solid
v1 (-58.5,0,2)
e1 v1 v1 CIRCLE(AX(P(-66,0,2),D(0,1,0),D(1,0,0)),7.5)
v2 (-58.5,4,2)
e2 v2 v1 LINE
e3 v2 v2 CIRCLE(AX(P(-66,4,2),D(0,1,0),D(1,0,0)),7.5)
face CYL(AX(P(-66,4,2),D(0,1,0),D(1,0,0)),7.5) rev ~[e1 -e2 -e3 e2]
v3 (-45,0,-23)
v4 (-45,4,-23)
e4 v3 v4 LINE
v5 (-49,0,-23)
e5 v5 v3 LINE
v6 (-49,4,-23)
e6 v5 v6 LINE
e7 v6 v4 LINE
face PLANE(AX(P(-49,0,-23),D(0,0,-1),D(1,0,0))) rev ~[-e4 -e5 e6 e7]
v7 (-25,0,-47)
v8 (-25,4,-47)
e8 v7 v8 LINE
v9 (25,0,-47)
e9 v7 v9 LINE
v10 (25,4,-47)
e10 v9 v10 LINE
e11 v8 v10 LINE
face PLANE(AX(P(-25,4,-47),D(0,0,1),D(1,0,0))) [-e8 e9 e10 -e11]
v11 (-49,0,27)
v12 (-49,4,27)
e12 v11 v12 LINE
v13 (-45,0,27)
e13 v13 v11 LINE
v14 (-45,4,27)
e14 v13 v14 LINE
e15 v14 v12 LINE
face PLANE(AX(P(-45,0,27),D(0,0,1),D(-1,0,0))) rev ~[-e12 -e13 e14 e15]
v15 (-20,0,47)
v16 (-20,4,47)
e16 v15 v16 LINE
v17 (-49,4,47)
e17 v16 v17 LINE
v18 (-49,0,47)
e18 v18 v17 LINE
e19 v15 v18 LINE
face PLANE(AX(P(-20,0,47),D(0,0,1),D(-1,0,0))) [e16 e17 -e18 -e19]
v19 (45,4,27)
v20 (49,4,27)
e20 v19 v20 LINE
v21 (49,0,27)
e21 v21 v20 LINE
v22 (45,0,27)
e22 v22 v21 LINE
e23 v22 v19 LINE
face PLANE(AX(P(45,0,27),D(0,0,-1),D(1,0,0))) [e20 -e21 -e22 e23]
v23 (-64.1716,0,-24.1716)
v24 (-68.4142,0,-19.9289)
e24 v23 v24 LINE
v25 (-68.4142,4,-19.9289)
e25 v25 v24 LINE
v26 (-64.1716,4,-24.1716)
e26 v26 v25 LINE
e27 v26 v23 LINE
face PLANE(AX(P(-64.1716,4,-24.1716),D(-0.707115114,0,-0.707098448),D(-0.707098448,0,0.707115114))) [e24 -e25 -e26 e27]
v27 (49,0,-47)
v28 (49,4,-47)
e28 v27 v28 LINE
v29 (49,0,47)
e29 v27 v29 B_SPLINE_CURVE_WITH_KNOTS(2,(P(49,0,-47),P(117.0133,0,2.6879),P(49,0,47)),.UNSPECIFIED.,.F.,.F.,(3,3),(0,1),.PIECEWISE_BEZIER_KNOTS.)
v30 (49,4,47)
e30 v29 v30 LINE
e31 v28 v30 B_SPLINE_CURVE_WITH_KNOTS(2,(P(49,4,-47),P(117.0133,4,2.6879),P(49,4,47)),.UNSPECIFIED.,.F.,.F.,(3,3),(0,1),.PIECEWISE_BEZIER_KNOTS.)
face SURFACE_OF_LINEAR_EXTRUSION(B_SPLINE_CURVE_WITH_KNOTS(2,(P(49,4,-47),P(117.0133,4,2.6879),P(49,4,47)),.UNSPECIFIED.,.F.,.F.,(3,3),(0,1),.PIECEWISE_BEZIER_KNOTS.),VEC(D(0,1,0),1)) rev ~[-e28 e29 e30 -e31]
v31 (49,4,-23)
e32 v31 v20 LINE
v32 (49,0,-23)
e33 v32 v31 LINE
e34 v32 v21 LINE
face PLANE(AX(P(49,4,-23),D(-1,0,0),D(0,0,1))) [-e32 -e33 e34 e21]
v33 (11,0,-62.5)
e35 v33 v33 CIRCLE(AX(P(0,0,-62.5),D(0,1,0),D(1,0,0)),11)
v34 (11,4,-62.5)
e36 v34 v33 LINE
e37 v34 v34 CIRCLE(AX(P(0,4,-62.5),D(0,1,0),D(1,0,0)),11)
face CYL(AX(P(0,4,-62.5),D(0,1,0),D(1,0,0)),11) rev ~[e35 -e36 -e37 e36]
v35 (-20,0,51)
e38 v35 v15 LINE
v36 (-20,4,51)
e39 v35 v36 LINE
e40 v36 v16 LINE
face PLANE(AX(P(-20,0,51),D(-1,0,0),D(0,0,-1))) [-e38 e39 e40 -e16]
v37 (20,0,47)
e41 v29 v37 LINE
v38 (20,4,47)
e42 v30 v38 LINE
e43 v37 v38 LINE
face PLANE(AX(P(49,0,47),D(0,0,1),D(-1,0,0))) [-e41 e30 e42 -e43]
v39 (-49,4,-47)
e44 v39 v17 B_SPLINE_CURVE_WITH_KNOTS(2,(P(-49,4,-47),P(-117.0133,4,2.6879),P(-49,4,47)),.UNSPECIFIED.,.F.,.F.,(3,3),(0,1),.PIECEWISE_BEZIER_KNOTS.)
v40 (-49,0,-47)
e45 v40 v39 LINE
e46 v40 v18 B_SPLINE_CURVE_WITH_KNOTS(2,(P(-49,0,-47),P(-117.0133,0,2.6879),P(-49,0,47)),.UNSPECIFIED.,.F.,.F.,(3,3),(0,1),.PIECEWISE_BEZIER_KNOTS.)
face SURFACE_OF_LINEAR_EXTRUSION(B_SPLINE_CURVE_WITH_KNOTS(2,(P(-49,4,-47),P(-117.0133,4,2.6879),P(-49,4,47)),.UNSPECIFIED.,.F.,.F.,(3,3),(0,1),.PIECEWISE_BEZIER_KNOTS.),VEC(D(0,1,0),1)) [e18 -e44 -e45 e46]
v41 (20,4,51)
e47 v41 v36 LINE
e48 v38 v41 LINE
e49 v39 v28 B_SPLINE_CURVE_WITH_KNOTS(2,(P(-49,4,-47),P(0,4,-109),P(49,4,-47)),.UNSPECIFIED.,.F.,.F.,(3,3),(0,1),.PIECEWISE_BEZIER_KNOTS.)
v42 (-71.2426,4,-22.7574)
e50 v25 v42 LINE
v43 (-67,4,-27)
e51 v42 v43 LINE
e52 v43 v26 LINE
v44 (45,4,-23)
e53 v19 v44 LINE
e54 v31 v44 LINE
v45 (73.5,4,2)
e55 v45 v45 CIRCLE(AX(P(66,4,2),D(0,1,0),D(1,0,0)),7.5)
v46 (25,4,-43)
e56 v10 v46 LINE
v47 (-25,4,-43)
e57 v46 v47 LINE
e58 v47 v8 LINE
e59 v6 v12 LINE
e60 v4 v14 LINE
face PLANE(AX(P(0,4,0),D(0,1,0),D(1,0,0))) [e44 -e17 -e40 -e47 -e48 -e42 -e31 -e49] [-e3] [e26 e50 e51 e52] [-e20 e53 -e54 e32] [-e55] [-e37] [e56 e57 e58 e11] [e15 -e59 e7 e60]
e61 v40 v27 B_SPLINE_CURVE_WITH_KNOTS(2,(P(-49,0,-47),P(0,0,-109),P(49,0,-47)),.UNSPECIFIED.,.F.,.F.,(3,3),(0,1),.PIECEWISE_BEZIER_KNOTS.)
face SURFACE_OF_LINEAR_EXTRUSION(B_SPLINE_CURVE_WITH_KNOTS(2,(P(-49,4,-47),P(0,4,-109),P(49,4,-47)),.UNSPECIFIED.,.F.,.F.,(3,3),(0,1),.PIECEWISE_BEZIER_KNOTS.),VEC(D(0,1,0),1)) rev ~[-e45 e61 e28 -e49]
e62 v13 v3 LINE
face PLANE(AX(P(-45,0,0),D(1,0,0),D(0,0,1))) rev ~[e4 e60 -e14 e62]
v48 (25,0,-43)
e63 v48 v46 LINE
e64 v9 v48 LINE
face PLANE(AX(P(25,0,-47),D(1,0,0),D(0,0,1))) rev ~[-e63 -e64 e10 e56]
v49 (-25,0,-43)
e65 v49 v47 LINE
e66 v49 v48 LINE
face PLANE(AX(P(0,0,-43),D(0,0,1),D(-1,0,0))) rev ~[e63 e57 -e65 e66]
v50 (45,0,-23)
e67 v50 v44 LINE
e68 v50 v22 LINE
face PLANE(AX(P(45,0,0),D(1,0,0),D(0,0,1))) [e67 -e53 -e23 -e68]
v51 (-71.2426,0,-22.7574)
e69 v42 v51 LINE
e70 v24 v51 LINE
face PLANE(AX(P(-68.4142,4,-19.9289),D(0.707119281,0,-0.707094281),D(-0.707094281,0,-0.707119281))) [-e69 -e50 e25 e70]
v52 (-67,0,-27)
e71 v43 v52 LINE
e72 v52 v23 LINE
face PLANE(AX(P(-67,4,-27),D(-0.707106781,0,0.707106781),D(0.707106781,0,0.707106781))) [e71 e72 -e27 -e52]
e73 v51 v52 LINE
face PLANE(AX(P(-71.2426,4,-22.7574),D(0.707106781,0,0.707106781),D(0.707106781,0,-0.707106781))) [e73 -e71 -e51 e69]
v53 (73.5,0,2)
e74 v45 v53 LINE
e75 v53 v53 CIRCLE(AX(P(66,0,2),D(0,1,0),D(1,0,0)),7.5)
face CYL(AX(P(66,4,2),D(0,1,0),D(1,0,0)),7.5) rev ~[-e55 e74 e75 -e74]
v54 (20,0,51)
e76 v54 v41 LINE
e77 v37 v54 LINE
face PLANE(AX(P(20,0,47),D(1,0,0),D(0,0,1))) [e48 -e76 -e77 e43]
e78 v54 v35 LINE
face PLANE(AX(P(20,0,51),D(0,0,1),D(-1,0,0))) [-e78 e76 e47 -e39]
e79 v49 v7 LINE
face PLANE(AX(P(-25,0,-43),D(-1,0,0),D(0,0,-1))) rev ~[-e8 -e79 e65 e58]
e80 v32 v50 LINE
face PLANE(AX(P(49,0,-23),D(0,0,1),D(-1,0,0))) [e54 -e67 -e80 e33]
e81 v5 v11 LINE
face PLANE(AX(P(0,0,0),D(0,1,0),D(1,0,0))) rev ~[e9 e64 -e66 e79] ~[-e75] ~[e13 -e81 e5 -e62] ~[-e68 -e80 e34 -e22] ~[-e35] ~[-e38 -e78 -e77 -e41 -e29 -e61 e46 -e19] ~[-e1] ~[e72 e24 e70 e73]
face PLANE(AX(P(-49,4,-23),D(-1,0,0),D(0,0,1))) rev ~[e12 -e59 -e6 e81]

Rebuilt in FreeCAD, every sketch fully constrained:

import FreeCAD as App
import Part
import Sketcher

V = App.Vector
Q = App.Units.Quantity

doc = App.newDocument("Part")
body = doc.addObject("PartDesign::Body", "Body")

sketch1 = doc.addObject("Sketcher::SketchObject", "Sketch")
body.addObject(sketch1)
sketch1.AttachmentSupport = (doc.XZ_Plane, [""])
sketch1.MapMode = "FlatFace"
sketch1.addGeometry([
    Part.LineSegment(V(20, 47, 0), V(49, 47, 0)),
    Part.LineSegment(V(49, 47, 0), V(49, 27, 0)),
    Part.LineSegment(V(49, 27, 0), V(45, 27, 0)),
    Part.LineSegment(V(45, 27, 0), V(45, -23, 0)),
    Part.LineSegment(V(45, -23, 0), V(49, -23, 0)),
    Part.LineSegment(V(49, -23, 0), V(49, -47, 0)),
    Part.LineSegment(V(49, -47, 0), V(25, -47, 0)),
    Part.LineSegment(V(25, -47, 0), V(25, -43, 0)),
    Part.LineSegment(V(25, -43, 0), V(-25, -43, 0)),
    Part.LineSegment(V(-25, -43, 0), V(-25, -47, 0)),
    Part.LineSegment(V(-25, -47, 0), V(-49, -47, 0)),
    Part.LineSegment(V(-49, -47, 0), V(-49, -23, 0)),
    Part.LineSegment(V(-49, -23, 0), V(-45, -23, 0)),
    Part.LineSegment(V(-45, -23, 0), V(-45, 27, 0)),
    Part.LineSegment(V(-45, 27, 0), V(-49, 27, 0)),
    Part.LineSegment(V(-49, 27, 0), V(-49, 47, 0)),
    Part.LineSegment(V(-49, 47, 0), V(-20, 47, 0)),
    Part.LineSegment(V(-20, 47, 0), V(-20, 51, 0)),
    Part.LineSegment(V(-20, 51, 0), V(20, 51, 0)),
    Part.LineSegment(V(20, 51, 0), V(20, 47, 0)),
], False)
sketch1.addConstraint([
    Sketcher.Constraint("Coincident", 0, 2, 1, 1),
    Sketcher.Constraint("Coincident", 1, 2, 2, 1),
    Sketcher.Constraint("Coincident", 2, 2, 3, 1),
    Sketcher.Constraint("Coincident", 3, 2, 4, 1),
    Sketcher.Constraint("Coincident", 4, 2, 5, 1),
    Sketcher.Constraint("Coincident", 5, 2, 6, 1),
    Sketcher.Constraint("Coincident", 6, 2, 7, 1),
    Sketcher.Constraint("Coincident", 7, 2, 8, 1),
    Sketcher.Constraint("Coincident", 8, 2, 9, 1),
    Sketcher.Constraint("Coincident", 9, 2, 10, 1),
    Sketcher.Constraint("Coincident", 10, 2, 11, 1),
    Sketcher.Constraint("Coincident", 11, 2, 12, 1),
    Sketcher.Constraint("Coincident", 12, 2, 13, 1),
    Sketcher.Constraint("Coincident", 13, 2, 14, 1),
    Sketcher.Constraint("Coincident", 14, 2, 15, 1),
    Sketcher.Constraint("Coincident", 15, 2, 16, 1),
    Sketcher.Constraint("Coincident", 16, 2, 17, 1),
    Sketcher.Constraint("Coincident", 17, 2, 18, 1),
    Sketcher.Constraint("Coincident", 18, 2, 19, 1),
    Sketcher.Constraint("Coincident", 19, 2, 0, 1),
    Sketcher.Constraint("Horizontal", 0),
    Sketcher.Constraint("Vertical", 1),
    Sketcher.Constraint("Horizontal", 2),
    Sketcher.Constraint("Vertical", 3),
    Sketcher.Constraint("Horizontal", 4),
    Sketcher.Constraint("Vertical", 5),
    Sketcher.Constraint("Horizontal", 6),
    Sketcher.Constraint("Vertical", 7),
    Sketcher.Constraint("Horizontal", 8),
    Sketcher.Constraint("Vertical", 9),
    Sketcher.Constraint("Horizontal", 10),
    Sketcher.Constraint("Vertical", 11),
    Sketcher.Constraint("Horizontal", 12),
    Sketcher.Constraint("Vertical", 13),
    Sketcher.Constraint("Horizontal", 14),
    Sketcher.Constraint("Vertical", 15),
    Sketcher.Constraint("Horizontal", 16),
    Sketcher.Constraint("Vertical", 17),
    Sketcher.Constraint("Horizontal", 18),
    Sketcher.Constraint("Vertical", 19),
    Sketcher.Constraint("Symmetric", 0, 2, 10, 2, -1, 1),
    Sketcher.Constraint("Symmetric", 5, 2, 15, 2, -1, 1),
    Sketcher.Constraint("Symmetric", 6, 2, 9, 2, -2),
    Sketcher.Constraint("Symmetric", 4, 2, 11, 2, -2),
    Sketcher.Constraint("Symmetric", 2, 2, 13, 2, -2),
    Sketcher.Constraint("Equal", 0, 16),
    Sketcher.Constraint("Equal", 8, 3),
    Sketcher.Constraint("Equal", 10, 5),
    Sketcher.Constraint("Equal", 14, 7),
    Sketcher.Constraint("Equal", 9, 17),
    Sketcher.Constraint("DistanceX", 2, 2, 2, 1, Q("4 mm")),
    Sketcher.Constraint("DistanceX", 8, 2, 8, 1, Q("50 mm")),
    Sketcher.Constraint("DistanceX", 18, 1, 18, 2, Q("40 mm")),
    Sketcher.Constraint("DistanceY", 5, 2, 0, 2, Q("94 mm")),
    Sketcher.Constraint("DistanceX", 10, 2, 3, 2, Q("94 mm")),
])
pad1 = doc.addObject("PartDesign::Pad", "Pad")
body.addObject(pad1)
pad1.Profile = sketch1
pad1.Length = 4
pad1.Reversed = True

sketch2 = doc.addObject("Sketcher::SketchObject", "Sketch001")
body.addObject(sketch2)
sketch2.AttachmentSupport = (doc.XZ_Plane, [""])
sketch2.MapMode = "FlatFace"
sketch2.AttachmentOffset = App.Placement(V(0, 0, -4), App.Rotation())
sketch2.addGeometry([
    Part.BSplineCurve([V(-49, -47, 0), V(0, -109, 0), V(49, -47, 0)], [3, 3], [0, 1], False, 2, [1, 1, 1], False),
    Part.BSplineCurve([V(-49, -47, 0), V(-117.0133, 2.6879, 0), V(-49, 47, 0)], [3, 3], [0, 1], False, 2, [1, 1, 1], False),
    Part.LineSegment(V(-49, 47, 0), V(0, 47, 0)),
    Part.LineSegment(V(0, 47, 0), V(49, 47, 0)),
    Part.BSplineCurve([V(49, -47, 0), V(117.0133, 2.6879, 0), V(49, 47, 0)], [3, 3], [0, 1], False, 2, [1, 1, 1], False),
    Part.Circle(V(-66, 2, 0), V(0, 0, 1), 7.5),
    Part.LineSegment(V(-71.2426, -22.7574, 0), V(-67, -27, 0)),
    Part.LineSegment(V(-67, -27, 0), V(-64.1716, -24.1716, 0)),
    Part.LineSegment(V(-64.1716, -24.1716, 0), V(-68.4142, -19.9289, 0)),
    Part.LineSegment(V(-68.4142, -19.9289, 0), V(-71.2426, -22.7574, 0)),
    Part.LineSegment(V(-49, 27, 0), V(-49, -23, 0)),
    Part.LineSegment(V(-49, -23, 0), V(-45, -23, 0)),
    Part.LineSegment(V(-45, -23, 0), V(-45, 27, 0)),
    Part.LineSegment(V(-45, 27, 0), V(-49, 27, 0)),
    Part.LineSegment(V(45, 27, 0), V(45, -23, 0)),
    Part.LineSegment(V(45, -23, 0), V(49, -23, 0)),
    Part.LineSegment(V(49, -23, 0), V(49, 27, 0)),
    Part.LineSegment(V(49, 27, 0), V(45, 27, 0)),
    Part.Circle(V(66, 2, 0), V(0, 0, 1), 7.5),
    Part.LineSegment(V(25, -43, 0), V(0, -43, 0)),
    Part.LineSegment(V(0, -43, 0), V(-25, -43, 0)),
    Part.LineSegment(V(-25, -43, 0), V(-25, -47, 0)),
    Part.LineSegment(V(-25, -47, 0), V(25, -47, 0)),
    Part.LineSegment(V(25, -47, 0), V(25, -43, 0)),
    Part.Circle(V(0, -62.5, 0), V(0, 0, 1), 11),
], False)
sketch2.addConstraint([
    Sketcher.Constraint("Block", 0),
    Sketcher.Constraint("Block", 1),
    Sketcher.Constraint("Block", 4),
    Sketcher.Constraint("Coincident", 1, 2, 2, 1),
    Sketcher.Constraint("Coincident", 2, 2, 3, 1),
    Sketcher.Constraint("Coincident", 3, 2, 4, 2),
    Sketcher.Constraint("Coincident", 6, 2, 7, 1),
    Sketcher.Constraint("Coincident", 7, 2, 8, 1),
    Sketcher.Constraint("Coincident", 8, 2, 9, 1),
    Sketcher.Constraint("Coincident", 9, 2, 6, 1),
    Sketcher.Constraint("Coincident", 10, 2, 11, 1),
    Sketcher.Constraint("Coincident", 11, 2, 12, 1),
    Sketcher.Constraint("Coincident", 12, 2, 13, 1),
    Sketcher.Constraint("Coincident", 13, 2, 10, 1),
    Sketcher.Constraint("Coincident", 14, 2, 15, 1),
    Sketcher.Constraint("Coincident", 15, 2, 16, 1),
    Sketcher.Constraint("Coincident", 16, 2, 17, 1),
    Sketcher.Constraint("Coincident", 17, 2, 14, 1),
    Sketcher.Constraint("Coincident", 19, 2, 20, 1),
    Sketcher.Constraint("Coincident", 20, 2, 21, 1),
    Sketcher.Constraint("Coincident", 21, 2, 22, 1),
    Sketcher.Constraint("Coincident", 22, 2, 23, 1),
    Sketcher.Constraint("Coincident", 23, 2, 19, 1),
    Sketcher.Constraint("Horizontal", 2),
    Sketcher.Constraint("Vertical", 10),
    Sketcher.Constraint("Horizontal", 11),
    Sketcher.Constraint("Vertical", 12),
    Sketcher.Constraint("Horizontal", 13),
    Sketcher.Constraint("Vertical", 14),
    Sketcher.Constraint("Horizontal", 15),
    Sketcher.Constraint("Vertical", 16),
    Sketcher.Constraint("Horizontal", 17),
    Sketcher.Constraint("Horizontal", 19),
    Sketcher.Constraint("Horizontal", 20),
    Sketcher.Constraint("Vertical", 21),
    Sketcher.Constraint("Horizontal", 22),
    Sketcher.Constraint("Vertical", 23),
    Sketcher.Constraint("Equal", 5, 18),
    Sketcher.Constraint("Symmetric", 5, 3, 18, 3, -2),
    Sketcher.Constraint("Symmetric", 11, 2, 14, 2, -2),
    Sketcher.Constraint("Symmetric", 13, 2, 16, 2, -2),
    Sketcher.Constraint("PointOnObject", 24, 3, -2),
    Sketcher.Constraint("PointOnObject", 2, 2, -2),
    Sketcher.Constraint("PointOnObject", 19, 2, -2),
    Sketcher.Constraint("Perpendicular", 6, 7),
    Sketcher.Constraint("Perpendicular", 7, 8),
    Sketcher.Constraint("Perpendicular", 8, 9),
    Sketcher.Constraint("Vertical", 3, 2, 15, 2),
    Sketcher.Constraint("Equal", 19, 20),
    Sketcher.Constraint("Equal", 22, 10),
    Sketcher.Constraint("Equal", 17, 21),
    Sketcher.Constraint("Diameter", 5, Q("15 mm")),
    Sketcher.Constraint("Diameter", 24, Q("22 mm")),
    Sketcher.Constraint("DistanceX", 11, 1, 11, 2, Q("4 mm")),
    Sketcher.Constraint("Distance", 6, Q("6 mm")),
    Sketcher.Constraint("Distance", 7, Q("4 mm")),
    Sketcher.Constraint("DistanceY", -1, 1, 5, 3, Q("2 mm")),
    Sketcher.Constraint("DistanceX", 3, 2, 18, 3, Q("17 mm")),
    Sketcher.Constraint("DistanceX", 6, 2, 10, 2, Q("18 mm")),
    Sketcher.Constraint("DistanceY", 6, 2, 10, 2, Q("4 mm")),
    Sketcher.Constraint("DistanceY", 12, 2, 2, 2, Q("20 mm")),
    Sketcher.Constraint("DistanceY", 19, 2, 11, 2, Q("20 mm")),
    Sketcher.Constraint("DistanceX", 11, 2, 20, 2, Q("20 mm")),
    Sketcher.Constraint("DistanceY", 24, 3, 21, 2, Q("15.5 mm")),
    Sketcher.Constraint("Angle", 6, Q("-45 deg")),
])
pad2 = doc.addObject("PartDesign::Pad", "Pad001")
body.addObject(pad2)
pad2.Profile = sketch2
pad2.Length = 4

doc.recompute()
